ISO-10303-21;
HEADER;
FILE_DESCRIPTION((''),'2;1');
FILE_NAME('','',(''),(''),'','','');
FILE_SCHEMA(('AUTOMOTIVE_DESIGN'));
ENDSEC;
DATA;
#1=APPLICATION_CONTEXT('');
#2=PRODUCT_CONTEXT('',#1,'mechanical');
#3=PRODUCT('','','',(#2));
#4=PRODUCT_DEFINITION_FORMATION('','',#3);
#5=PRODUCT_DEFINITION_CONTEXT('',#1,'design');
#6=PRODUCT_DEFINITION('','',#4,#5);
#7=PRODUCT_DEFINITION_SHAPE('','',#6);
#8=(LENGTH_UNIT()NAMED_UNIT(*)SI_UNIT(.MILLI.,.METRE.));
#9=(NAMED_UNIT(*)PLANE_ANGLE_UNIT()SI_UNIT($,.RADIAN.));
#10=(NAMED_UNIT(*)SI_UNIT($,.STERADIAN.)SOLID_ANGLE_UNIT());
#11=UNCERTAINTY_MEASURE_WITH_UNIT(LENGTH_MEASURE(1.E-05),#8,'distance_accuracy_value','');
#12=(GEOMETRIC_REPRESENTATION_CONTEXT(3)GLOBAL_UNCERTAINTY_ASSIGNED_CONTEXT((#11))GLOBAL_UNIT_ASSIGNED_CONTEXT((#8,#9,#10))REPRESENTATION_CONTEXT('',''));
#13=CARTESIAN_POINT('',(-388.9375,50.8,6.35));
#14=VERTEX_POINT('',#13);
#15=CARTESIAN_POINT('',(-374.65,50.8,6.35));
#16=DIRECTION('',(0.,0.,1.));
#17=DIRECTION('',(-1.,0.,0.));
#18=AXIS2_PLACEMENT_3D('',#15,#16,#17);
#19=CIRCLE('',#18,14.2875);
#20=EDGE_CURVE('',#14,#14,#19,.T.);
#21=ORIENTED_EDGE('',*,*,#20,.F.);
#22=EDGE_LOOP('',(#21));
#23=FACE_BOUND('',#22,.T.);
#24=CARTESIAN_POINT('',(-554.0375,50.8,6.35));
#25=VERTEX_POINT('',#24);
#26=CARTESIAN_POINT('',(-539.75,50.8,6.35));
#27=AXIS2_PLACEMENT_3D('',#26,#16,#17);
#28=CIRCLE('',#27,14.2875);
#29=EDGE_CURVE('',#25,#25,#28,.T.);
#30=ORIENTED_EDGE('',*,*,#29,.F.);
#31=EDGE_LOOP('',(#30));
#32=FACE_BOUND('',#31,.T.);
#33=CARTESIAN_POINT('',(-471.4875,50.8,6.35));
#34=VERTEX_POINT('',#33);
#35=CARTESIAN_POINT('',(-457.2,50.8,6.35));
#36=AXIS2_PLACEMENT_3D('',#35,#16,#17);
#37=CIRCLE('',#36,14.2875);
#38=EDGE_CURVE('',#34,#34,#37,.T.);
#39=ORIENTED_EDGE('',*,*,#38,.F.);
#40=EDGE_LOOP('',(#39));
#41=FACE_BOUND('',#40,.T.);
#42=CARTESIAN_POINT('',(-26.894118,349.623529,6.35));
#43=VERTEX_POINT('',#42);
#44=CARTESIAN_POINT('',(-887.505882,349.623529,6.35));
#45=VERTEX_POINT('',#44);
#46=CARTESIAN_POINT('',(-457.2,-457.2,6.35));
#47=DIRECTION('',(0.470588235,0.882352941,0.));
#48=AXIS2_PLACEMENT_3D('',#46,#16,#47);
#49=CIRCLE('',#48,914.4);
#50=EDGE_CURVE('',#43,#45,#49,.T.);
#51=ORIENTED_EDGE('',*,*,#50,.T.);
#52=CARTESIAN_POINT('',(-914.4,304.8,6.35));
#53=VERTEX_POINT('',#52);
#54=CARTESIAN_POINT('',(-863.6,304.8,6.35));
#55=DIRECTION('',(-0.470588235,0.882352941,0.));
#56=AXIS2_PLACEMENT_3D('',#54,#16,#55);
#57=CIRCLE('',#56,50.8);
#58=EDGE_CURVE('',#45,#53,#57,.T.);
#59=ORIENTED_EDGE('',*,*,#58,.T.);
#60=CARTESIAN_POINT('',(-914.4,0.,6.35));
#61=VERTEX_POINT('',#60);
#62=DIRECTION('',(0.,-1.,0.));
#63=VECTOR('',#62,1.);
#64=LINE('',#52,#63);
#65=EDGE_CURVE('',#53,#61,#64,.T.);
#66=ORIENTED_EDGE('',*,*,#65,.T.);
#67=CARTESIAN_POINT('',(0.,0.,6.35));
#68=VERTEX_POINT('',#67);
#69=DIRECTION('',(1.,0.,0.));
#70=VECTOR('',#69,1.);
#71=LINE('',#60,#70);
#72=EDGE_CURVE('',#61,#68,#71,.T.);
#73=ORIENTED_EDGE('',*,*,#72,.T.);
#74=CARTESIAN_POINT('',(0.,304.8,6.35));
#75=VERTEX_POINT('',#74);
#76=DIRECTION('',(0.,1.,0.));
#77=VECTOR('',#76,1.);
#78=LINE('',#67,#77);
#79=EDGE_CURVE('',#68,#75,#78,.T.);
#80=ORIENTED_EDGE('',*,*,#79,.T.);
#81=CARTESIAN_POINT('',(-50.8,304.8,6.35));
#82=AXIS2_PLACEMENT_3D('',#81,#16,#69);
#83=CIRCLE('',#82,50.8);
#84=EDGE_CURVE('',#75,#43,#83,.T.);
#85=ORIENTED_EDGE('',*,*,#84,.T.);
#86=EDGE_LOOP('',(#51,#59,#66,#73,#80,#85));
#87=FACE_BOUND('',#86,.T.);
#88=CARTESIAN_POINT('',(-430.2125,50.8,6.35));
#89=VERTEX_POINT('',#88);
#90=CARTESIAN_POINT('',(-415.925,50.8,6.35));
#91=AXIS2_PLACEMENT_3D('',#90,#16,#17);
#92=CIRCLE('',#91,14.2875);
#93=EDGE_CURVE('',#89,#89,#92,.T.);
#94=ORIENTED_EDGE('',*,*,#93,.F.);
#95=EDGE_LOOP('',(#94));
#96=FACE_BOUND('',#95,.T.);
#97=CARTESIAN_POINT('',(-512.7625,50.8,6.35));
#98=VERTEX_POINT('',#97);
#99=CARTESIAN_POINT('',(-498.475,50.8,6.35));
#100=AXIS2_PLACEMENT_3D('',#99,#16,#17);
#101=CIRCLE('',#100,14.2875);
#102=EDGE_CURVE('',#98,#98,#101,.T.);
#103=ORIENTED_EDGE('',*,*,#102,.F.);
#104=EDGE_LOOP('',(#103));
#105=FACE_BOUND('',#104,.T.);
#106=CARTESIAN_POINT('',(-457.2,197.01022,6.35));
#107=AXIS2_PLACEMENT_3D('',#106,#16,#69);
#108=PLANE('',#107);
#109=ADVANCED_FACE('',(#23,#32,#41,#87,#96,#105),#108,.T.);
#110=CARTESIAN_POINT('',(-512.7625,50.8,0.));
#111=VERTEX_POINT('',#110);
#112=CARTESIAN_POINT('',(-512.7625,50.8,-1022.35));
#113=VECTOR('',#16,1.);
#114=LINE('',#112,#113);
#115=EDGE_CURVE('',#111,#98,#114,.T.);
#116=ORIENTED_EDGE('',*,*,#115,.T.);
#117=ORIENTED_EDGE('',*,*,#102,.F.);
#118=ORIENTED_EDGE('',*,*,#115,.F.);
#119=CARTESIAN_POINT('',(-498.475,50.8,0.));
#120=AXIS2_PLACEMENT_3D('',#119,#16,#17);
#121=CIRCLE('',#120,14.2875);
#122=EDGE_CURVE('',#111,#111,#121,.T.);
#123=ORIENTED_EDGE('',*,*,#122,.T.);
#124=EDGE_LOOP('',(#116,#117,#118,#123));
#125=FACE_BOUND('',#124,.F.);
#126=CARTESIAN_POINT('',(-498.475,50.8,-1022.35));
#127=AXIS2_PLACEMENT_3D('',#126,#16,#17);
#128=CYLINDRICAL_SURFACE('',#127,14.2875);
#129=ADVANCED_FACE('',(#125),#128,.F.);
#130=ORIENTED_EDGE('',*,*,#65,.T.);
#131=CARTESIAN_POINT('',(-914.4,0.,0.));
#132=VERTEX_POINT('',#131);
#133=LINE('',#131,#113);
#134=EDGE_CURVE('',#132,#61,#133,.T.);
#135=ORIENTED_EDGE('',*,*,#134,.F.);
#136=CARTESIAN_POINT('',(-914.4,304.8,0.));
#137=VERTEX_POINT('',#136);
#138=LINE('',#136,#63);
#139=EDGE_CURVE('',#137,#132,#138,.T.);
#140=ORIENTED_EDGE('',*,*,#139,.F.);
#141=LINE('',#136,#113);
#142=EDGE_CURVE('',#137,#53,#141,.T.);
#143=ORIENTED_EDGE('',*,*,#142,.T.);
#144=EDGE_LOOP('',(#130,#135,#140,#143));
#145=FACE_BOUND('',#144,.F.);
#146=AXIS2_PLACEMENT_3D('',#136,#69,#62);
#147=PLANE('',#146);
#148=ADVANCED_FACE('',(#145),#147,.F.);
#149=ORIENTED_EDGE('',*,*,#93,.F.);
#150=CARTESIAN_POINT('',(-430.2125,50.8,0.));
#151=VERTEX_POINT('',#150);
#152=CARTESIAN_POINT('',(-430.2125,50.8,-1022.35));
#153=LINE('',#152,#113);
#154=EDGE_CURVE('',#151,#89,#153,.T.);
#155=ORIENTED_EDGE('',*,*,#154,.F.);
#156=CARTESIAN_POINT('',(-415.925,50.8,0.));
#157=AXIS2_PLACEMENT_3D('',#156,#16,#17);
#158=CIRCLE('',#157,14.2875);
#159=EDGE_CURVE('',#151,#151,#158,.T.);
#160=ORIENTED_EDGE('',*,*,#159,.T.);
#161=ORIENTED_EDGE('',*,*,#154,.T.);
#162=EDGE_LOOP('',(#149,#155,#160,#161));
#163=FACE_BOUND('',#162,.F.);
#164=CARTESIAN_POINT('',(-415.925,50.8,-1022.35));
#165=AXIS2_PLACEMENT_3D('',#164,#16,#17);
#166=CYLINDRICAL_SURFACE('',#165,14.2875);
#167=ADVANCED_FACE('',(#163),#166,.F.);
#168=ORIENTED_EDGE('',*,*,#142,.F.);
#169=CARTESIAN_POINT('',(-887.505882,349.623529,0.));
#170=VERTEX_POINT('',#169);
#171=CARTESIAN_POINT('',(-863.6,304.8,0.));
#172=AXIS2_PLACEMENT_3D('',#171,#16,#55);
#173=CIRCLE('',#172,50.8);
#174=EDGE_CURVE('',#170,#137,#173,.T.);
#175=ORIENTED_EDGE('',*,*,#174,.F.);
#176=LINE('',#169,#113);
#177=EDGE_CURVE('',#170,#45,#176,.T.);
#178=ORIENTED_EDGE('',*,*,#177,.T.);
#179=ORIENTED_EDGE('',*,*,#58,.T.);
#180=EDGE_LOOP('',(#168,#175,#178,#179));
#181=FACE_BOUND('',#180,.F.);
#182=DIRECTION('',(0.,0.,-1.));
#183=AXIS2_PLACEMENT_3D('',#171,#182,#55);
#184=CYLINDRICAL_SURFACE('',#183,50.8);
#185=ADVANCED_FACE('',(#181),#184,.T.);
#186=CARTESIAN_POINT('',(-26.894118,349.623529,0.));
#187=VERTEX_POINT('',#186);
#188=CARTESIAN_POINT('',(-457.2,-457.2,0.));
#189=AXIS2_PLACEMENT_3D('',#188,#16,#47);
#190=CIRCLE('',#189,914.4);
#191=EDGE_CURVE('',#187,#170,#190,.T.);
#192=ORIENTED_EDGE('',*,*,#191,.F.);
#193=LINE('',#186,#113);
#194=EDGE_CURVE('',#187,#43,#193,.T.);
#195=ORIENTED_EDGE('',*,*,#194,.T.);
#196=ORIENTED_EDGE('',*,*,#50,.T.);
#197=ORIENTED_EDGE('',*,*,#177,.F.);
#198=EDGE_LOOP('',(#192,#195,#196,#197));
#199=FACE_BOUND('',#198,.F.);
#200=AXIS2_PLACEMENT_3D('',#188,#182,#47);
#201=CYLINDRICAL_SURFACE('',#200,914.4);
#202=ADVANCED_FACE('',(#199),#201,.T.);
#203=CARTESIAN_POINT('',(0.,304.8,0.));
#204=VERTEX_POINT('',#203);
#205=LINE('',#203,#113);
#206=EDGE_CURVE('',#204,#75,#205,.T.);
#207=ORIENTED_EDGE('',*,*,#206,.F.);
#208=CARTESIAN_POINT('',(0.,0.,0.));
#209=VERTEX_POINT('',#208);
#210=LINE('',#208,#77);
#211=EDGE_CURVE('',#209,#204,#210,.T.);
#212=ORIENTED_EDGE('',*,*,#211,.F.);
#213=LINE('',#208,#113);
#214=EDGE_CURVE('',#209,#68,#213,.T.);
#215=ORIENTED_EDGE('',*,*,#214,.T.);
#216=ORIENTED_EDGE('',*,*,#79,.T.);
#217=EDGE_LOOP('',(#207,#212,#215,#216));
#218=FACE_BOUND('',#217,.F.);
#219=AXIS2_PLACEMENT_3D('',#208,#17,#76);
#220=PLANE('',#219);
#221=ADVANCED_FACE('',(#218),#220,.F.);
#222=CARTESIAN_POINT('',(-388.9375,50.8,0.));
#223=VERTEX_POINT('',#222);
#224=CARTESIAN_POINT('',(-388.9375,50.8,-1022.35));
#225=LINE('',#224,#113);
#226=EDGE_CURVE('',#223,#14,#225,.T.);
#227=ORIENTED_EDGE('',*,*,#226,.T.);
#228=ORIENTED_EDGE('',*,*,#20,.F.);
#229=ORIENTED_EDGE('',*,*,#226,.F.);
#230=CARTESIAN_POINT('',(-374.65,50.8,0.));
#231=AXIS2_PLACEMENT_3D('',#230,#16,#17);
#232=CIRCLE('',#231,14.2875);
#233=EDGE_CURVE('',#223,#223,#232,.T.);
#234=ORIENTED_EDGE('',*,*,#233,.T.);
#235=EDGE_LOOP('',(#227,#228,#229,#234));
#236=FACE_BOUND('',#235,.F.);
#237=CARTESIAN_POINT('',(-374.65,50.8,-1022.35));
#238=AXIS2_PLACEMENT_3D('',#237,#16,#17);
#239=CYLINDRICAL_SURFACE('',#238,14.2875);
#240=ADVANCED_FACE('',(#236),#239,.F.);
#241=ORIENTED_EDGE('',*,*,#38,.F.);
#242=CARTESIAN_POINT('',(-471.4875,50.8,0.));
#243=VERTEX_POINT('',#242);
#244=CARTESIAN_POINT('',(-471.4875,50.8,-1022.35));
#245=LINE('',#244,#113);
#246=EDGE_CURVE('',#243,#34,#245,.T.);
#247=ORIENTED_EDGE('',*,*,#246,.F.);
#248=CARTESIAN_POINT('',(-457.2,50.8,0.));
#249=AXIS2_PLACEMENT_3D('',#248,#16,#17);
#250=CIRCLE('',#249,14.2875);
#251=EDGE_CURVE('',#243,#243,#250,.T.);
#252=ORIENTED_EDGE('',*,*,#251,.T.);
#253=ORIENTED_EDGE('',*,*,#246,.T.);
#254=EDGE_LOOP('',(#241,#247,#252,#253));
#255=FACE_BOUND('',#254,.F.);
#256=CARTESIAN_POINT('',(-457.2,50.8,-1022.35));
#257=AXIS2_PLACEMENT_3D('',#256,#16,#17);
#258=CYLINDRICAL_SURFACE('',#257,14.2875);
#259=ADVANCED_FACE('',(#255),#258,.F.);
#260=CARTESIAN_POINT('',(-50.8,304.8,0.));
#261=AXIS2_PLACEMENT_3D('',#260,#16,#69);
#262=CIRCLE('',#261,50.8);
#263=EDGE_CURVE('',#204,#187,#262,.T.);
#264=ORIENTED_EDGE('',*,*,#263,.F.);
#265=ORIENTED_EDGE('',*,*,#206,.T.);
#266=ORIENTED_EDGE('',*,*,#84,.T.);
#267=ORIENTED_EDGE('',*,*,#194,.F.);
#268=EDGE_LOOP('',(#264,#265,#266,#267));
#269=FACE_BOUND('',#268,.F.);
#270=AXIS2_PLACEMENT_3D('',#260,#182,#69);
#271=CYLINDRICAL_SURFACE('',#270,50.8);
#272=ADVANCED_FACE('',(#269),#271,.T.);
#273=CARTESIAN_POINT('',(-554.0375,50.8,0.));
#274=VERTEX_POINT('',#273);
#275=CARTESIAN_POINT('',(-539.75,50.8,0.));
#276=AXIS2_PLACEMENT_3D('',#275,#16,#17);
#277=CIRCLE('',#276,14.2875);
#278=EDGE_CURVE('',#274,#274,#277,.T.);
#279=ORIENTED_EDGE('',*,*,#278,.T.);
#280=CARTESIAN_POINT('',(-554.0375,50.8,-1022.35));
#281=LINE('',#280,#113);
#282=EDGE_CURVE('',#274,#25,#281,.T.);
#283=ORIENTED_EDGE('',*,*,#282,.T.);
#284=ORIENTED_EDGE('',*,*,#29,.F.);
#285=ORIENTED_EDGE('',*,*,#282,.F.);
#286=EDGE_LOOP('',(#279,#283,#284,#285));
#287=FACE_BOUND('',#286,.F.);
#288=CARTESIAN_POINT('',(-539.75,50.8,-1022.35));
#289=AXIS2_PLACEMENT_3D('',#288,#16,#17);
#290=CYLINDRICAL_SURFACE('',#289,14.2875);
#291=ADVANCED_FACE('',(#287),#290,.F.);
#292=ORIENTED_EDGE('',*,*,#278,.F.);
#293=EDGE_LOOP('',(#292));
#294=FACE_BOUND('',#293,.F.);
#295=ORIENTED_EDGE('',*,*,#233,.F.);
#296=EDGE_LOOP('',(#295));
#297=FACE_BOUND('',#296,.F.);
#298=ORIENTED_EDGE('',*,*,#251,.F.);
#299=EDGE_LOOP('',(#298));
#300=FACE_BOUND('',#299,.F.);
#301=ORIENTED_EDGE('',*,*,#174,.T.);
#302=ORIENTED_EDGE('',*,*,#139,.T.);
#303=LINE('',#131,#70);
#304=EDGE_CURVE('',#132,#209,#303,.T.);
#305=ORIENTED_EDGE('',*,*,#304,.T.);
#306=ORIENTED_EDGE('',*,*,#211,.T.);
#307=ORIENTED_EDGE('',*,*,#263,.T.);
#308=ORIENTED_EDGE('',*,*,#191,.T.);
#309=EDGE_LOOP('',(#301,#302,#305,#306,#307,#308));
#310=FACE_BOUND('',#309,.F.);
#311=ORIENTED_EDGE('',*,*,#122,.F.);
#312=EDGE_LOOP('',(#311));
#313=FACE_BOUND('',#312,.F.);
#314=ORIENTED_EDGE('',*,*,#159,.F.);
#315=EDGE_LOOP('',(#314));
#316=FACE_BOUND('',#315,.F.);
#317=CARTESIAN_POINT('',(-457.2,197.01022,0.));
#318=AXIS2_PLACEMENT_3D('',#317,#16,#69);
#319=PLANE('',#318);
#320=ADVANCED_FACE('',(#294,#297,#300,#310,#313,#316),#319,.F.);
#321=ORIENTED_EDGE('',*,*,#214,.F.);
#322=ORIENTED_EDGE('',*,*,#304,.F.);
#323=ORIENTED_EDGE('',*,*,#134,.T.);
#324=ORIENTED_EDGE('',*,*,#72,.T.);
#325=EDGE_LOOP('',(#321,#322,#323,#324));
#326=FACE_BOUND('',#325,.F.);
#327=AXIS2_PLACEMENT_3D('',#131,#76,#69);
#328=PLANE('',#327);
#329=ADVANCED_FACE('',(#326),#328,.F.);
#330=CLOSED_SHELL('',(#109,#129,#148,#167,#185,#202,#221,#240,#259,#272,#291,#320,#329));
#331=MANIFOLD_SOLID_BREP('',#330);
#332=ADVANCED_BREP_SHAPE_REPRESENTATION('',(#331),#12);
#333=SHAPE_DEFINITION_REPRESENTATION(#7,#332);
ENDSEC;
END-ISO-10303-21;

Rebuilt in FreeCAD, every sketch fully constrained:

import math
import FreeCAD as App
import Part
import Sketcher
from FreeCAD import Vector
Q = App.Units.Quantity

doc = App.newDocument("Part")
params = doc.addObject("Spreadsheet::Sheet", "Params")
for row, (alias, value) in enumerate([
    ("sketch1_radius", "2 in"),
    ("sketch1_radius2", "36 in"),
    ("sketch1_width", "36 in"),
    ("sketch1_height", "12 in"),
    ("pad1_length", "0.25 in"),
    ("sketch2_diameter", "1.125 in"),
    ("hole_diameter", "1.125 in"),
], start=1):
    params.set(f"A{row}", alias)
    params.set(f"B{row}", "=" + value)
    params.setAlias(f"B{row}", alias)

body = doc.addObject("PartDesign::Body", "Body")

sketch1 = body.newObject("Sketcher::SketchObject", "Sketch")
sketch1.AttachmentSupport = (doc.getObject("XY_Plane"), [""])
sketch1.MapMode = "FlatFace"
sketch1.addGeometry([
    Part.LineSegment(Vector(-914, 0, 0), Vector(0, 0, 0)),
    Part.LineSegment(Vector(0, 0, 0), Vector(0, 305, 0)),
    Part.ArcOfCircle(Part.Circle(Vector(-51, 305, 0), Vector(0, 0, 1), 51), math.radians(0), math.radians(62)),
    Part.ArcOfCircle(Part.Circle(Vector(-457, -457, 0), Vector(0, 0, 1), 914), math.radians(62), math.radians(118)),
    Part.ArcOfCircle(Part.Circle(Vector(-864, 305, 0), Vector(0, 0, 1), 51), math.radians(118), math.radians(180)),
    Part.LineSegment(Vector(-914, 305, 0), Vector(-914, 0, 0)),
], False)
sketch1.addConstraint([
    Sketcher.Constraint("Coincident", 0, 2, 1, 1),
    Sketcher.Constraint("Tangent", 1, 2, 2, 1),
    Sketcher.Constraint("Tangent", 2, 2, 3, 1),
    Sketcher.Constraint("Tangent", 3, 2, 4, 1),
    Sketcher.Constraint("Tangent", 4, 2, 5, 1),
    Sketcher.Constraint("Coincident", 5, 2, 0, 1),
    Sketcher.Constraint("Horizontal", 0),
    Sketcher.Constraint("Vertical", 1),
    Sketcher.Constraint("Vertical", 5),
    Sketcher.Constraint("Coincident", 0, 2, -1, 1),
    Sketcher.Constraint("Equal", 2, 4),
    Sketcher.Constraint("Horizontal", 2, 3, 4, 3),
    Sketcher.Constraint("Radius", 2, Q("2 in")),
    Sketcher.Constraint("Radius", 3, Q("36 in")),
    Sketcher.Constraint("DistanceX", 0, 1, 0, 2, Q("36 in")),
    Sketcher.Constraint("DistanceY", 1, 1, 1, 2, Q("12 in")),
])
sketch1.setExpression("Constraints[12]", "Params.sketch1_radius")
sketch1.setExpression("Constraints[13]", "Params.sketch1_radius2")
sketch1.setExpression("Constraints[14]", "Params.sketch1_width")
sketch1.setExpression("Constraints[15]", "Params.sketch1_height")
pad1 = body.newObject("PartDesign::Pad", "Pad")
pad1.Profile = sketch1
pad1.setExpression("Length", "Params.pad1_length")

sketch2 = body.newObject("Sketcher::SketchObject", "Sketch001")
sketch2.AttachmentSupport = (doc.getObject("XY_Plane"), [""])
sketch2.MapMode = "FlatFace"
sketch2.addGeometry([
    Part.Circle(Vector(-416, 51, 0), Vector(0, 0, 1), 14),
    Part.Circle(Vector(-375, 51, 0), Vector(0, 0, 1), 14),
    Part.Circle(Vector(-457, 51, 0), Vector(0, 0, 1), 14),
    Part.Circle(Vector(-498, 51, 0), Vector(0, 0, 1), 14),
    Part.Circle(Vector(-540, 51, 0), Vector(0, 0, 1), 14),
], False)
sketch2.addConstraint([
    Sketcher.Constraint("Equal", 0, 1),
    Sketcher.Constraint("Equal", 1, 2),
    Sketcher.Constraint("Equal", 2, 3),
    Sketcher.Constraint("Equal", 3, 4),
    Sketcher.Constraint("Horizontal", 0, 3, 1, 3),
    Sketcher.Constraint("Horizontal", 1, 3, 2, 3),
    Sketcher.Constraint("Horizontal", 2, 3, 3, 3),
    Sketcher.Constraint("Horizontal", 3, 3, 4, 3),
    Sketcher.Constraint("Diameter", 0, Q("1.125 in")),
    Sketcher.Constraint("DistanceY", -1, 1, 0, 3, Q("2 in")),
    Sketcher.Constraint("DistanceX", 2, 3, -1, 1, Q("18 in")),
    Sketcher.Constraint("DistanceX", 4, 3, 1, 3, Q("6.5 in")),
    Sketcher.Constraint("DistanceX", 1, 3, -1, 1, Q("14.75 in")),
    Sketcher.Constraint("DistanceX", 3, 3, 0, 3, Q("3.25 in")),
    Sketcher.Constraint("DistanceX", 0, 3, -1, 1, Q("16.375 in")),
])
sketch2.setExpression("Constraints[8]", "Params.sketch2_diameter")
doc.recompute()
hole = body.newObject("PartDesign::Hole", "Hole")
hole.Profile = sketch2
hole.ThreadType = "None"
hole.setExpression("Diameter", "Params.hole_diameter")
hole.DepthType = "ThroughAll"
hole.Reversed = True

doc.recompute()
